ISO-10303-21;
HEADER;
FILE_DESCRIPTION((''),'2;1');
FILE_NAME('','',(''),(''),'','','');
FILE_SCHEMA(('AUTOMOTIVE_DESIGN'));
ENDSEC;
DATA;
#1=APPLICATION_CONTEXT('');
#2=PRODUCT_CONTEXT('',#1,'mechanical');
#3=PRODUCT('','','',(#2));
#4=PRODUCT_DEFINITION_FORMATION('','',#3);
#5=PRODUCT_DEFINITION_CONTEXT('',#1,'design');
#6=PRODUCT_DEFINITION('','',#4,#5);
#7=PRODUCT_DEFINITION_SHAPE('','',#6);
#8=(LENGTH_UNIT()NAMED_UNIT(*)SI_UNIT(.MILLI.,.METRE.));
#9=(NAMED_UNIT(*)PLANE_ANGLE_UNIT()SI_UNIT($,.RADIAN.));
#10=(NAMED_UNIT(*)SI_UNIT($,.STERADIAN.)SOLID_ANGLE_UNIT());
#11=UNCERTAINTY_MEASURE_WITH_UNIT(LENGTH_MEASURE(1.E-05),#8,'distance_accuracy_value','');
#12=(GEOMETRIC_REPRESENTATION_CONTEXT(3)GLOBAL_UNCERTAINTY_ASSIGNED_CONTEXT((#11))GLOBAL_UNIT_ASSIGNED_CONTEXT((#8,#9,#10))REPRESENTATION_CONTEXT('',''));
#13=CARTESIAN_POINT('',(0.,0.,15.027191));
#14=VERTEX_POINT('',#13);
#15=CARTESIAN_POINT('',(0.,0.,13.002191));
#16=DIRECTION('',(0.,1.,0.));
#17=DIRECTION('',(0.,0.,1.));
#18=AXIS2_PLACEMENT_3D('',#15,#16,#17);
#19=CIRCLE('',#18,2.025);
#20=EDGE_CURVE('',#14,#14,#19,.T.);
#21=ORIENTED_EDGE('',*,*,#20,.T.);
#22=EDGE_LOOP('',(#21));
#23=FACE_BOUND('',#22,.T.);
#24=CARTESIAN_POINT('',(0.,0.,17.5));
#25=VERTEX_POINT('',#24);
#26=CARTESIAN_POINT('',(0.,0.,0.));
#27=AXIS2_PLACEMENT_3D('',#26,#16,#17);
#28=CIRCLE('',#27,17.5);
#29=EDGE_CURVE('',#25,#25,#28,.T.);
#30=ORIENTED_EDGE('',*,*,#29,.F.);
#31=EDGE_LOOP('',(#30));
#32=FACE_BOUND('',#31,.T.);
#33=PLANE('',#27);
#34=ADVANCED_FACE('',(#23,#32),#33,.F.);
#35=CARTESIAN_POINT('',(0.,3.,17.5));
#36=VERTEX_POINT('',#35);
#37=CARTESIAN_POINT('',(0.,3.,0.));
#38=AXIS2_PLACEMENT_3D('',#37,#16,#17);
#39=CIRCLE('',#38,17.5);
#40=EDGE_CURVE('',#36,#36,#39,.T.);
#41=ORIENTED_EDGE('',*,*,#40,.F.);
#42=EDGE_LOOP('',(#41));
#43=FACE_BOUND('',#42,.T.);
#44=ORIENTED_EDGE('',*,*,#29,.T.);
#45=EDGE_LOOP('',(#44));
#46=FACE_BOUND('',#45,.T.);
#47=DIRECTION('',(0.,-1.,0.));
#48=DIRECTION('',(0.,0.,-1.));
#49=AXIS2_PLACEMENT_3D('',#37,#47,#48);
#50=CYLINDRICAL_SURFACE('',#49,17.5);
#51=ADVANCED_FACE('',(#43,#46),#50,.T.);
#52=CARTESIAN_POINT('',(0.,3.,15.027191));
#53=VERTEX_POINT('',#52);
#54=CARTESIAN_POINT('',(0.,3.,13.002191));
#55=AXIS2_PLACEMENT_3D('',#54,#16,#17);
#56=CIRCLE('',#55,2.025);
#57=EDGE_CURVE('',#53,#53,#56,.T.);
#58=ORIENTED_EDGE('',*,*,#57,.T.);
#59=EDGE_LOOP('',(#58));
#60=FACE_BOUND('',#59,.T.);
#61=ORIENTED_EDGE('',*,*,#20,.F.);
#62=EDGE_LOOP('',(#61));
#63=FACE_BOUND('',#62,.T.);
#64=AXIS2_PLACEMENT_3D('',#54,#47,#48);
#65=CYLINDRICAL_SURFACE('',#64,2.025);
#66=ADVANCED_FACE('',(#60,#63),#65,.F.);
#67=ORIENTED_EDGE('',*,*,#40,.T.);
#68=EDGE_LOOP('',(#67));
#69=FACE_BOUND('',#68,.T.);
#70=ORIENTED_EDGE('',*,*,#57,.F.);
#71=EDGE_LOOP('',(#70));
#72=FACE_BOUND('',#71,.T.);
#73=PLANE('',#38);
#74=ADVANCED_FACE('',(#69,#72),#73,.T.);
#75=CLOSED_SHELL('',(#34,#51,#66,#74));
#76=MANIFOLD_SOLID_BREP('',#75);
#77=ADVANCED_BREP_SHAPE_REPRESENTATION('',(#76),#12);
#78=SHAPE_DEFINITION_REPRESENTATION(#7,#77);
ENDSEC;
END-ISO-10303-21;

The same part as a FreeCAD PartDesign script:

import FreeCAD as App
import Part
import Sketcher

doc = App.newDocument("Part")
body = doc.addObject("PartDesign::Body", "Body")

# Sketch on XZ plane
sketch1 = body.newObject("Sketcher::SketchObject", "Sketch")
sketch1.AttachmentSupport = (doc.getObject("XZ_Plane"), [""])
sketch1.MapMode = "FlatFace"
sketch1.addGeometry([
    Part.Circle(App.Vector(0, 0, 0), App.Vector(0, 0, 1), 17.5),
    Part.Circle(App.Vector(0, 13, 0), App.Vector(0, 0, 1), 2),
], False)
sketch1.addConstraint([
    Sketcher.Constraint("Coincident", 0, 3, -1, 1),
    Sketcher.Constraint("PointOnObject", 1, 3, -2),
    Sketcher.Constraint("Diameter", 0, 35.0),
    Sketcher.Constraint("Diameter", 1, 4.05),
    Sketcher.Constraint("DistanceY", -1, 1, 1, 3, 13.002191),
])
pad1 = body.newObject("PartDesign::Pad", "Pad")
pad1.Profile = sketch1
pad1.Length = 3
pad1.Reversed = True

doc.recompute()
